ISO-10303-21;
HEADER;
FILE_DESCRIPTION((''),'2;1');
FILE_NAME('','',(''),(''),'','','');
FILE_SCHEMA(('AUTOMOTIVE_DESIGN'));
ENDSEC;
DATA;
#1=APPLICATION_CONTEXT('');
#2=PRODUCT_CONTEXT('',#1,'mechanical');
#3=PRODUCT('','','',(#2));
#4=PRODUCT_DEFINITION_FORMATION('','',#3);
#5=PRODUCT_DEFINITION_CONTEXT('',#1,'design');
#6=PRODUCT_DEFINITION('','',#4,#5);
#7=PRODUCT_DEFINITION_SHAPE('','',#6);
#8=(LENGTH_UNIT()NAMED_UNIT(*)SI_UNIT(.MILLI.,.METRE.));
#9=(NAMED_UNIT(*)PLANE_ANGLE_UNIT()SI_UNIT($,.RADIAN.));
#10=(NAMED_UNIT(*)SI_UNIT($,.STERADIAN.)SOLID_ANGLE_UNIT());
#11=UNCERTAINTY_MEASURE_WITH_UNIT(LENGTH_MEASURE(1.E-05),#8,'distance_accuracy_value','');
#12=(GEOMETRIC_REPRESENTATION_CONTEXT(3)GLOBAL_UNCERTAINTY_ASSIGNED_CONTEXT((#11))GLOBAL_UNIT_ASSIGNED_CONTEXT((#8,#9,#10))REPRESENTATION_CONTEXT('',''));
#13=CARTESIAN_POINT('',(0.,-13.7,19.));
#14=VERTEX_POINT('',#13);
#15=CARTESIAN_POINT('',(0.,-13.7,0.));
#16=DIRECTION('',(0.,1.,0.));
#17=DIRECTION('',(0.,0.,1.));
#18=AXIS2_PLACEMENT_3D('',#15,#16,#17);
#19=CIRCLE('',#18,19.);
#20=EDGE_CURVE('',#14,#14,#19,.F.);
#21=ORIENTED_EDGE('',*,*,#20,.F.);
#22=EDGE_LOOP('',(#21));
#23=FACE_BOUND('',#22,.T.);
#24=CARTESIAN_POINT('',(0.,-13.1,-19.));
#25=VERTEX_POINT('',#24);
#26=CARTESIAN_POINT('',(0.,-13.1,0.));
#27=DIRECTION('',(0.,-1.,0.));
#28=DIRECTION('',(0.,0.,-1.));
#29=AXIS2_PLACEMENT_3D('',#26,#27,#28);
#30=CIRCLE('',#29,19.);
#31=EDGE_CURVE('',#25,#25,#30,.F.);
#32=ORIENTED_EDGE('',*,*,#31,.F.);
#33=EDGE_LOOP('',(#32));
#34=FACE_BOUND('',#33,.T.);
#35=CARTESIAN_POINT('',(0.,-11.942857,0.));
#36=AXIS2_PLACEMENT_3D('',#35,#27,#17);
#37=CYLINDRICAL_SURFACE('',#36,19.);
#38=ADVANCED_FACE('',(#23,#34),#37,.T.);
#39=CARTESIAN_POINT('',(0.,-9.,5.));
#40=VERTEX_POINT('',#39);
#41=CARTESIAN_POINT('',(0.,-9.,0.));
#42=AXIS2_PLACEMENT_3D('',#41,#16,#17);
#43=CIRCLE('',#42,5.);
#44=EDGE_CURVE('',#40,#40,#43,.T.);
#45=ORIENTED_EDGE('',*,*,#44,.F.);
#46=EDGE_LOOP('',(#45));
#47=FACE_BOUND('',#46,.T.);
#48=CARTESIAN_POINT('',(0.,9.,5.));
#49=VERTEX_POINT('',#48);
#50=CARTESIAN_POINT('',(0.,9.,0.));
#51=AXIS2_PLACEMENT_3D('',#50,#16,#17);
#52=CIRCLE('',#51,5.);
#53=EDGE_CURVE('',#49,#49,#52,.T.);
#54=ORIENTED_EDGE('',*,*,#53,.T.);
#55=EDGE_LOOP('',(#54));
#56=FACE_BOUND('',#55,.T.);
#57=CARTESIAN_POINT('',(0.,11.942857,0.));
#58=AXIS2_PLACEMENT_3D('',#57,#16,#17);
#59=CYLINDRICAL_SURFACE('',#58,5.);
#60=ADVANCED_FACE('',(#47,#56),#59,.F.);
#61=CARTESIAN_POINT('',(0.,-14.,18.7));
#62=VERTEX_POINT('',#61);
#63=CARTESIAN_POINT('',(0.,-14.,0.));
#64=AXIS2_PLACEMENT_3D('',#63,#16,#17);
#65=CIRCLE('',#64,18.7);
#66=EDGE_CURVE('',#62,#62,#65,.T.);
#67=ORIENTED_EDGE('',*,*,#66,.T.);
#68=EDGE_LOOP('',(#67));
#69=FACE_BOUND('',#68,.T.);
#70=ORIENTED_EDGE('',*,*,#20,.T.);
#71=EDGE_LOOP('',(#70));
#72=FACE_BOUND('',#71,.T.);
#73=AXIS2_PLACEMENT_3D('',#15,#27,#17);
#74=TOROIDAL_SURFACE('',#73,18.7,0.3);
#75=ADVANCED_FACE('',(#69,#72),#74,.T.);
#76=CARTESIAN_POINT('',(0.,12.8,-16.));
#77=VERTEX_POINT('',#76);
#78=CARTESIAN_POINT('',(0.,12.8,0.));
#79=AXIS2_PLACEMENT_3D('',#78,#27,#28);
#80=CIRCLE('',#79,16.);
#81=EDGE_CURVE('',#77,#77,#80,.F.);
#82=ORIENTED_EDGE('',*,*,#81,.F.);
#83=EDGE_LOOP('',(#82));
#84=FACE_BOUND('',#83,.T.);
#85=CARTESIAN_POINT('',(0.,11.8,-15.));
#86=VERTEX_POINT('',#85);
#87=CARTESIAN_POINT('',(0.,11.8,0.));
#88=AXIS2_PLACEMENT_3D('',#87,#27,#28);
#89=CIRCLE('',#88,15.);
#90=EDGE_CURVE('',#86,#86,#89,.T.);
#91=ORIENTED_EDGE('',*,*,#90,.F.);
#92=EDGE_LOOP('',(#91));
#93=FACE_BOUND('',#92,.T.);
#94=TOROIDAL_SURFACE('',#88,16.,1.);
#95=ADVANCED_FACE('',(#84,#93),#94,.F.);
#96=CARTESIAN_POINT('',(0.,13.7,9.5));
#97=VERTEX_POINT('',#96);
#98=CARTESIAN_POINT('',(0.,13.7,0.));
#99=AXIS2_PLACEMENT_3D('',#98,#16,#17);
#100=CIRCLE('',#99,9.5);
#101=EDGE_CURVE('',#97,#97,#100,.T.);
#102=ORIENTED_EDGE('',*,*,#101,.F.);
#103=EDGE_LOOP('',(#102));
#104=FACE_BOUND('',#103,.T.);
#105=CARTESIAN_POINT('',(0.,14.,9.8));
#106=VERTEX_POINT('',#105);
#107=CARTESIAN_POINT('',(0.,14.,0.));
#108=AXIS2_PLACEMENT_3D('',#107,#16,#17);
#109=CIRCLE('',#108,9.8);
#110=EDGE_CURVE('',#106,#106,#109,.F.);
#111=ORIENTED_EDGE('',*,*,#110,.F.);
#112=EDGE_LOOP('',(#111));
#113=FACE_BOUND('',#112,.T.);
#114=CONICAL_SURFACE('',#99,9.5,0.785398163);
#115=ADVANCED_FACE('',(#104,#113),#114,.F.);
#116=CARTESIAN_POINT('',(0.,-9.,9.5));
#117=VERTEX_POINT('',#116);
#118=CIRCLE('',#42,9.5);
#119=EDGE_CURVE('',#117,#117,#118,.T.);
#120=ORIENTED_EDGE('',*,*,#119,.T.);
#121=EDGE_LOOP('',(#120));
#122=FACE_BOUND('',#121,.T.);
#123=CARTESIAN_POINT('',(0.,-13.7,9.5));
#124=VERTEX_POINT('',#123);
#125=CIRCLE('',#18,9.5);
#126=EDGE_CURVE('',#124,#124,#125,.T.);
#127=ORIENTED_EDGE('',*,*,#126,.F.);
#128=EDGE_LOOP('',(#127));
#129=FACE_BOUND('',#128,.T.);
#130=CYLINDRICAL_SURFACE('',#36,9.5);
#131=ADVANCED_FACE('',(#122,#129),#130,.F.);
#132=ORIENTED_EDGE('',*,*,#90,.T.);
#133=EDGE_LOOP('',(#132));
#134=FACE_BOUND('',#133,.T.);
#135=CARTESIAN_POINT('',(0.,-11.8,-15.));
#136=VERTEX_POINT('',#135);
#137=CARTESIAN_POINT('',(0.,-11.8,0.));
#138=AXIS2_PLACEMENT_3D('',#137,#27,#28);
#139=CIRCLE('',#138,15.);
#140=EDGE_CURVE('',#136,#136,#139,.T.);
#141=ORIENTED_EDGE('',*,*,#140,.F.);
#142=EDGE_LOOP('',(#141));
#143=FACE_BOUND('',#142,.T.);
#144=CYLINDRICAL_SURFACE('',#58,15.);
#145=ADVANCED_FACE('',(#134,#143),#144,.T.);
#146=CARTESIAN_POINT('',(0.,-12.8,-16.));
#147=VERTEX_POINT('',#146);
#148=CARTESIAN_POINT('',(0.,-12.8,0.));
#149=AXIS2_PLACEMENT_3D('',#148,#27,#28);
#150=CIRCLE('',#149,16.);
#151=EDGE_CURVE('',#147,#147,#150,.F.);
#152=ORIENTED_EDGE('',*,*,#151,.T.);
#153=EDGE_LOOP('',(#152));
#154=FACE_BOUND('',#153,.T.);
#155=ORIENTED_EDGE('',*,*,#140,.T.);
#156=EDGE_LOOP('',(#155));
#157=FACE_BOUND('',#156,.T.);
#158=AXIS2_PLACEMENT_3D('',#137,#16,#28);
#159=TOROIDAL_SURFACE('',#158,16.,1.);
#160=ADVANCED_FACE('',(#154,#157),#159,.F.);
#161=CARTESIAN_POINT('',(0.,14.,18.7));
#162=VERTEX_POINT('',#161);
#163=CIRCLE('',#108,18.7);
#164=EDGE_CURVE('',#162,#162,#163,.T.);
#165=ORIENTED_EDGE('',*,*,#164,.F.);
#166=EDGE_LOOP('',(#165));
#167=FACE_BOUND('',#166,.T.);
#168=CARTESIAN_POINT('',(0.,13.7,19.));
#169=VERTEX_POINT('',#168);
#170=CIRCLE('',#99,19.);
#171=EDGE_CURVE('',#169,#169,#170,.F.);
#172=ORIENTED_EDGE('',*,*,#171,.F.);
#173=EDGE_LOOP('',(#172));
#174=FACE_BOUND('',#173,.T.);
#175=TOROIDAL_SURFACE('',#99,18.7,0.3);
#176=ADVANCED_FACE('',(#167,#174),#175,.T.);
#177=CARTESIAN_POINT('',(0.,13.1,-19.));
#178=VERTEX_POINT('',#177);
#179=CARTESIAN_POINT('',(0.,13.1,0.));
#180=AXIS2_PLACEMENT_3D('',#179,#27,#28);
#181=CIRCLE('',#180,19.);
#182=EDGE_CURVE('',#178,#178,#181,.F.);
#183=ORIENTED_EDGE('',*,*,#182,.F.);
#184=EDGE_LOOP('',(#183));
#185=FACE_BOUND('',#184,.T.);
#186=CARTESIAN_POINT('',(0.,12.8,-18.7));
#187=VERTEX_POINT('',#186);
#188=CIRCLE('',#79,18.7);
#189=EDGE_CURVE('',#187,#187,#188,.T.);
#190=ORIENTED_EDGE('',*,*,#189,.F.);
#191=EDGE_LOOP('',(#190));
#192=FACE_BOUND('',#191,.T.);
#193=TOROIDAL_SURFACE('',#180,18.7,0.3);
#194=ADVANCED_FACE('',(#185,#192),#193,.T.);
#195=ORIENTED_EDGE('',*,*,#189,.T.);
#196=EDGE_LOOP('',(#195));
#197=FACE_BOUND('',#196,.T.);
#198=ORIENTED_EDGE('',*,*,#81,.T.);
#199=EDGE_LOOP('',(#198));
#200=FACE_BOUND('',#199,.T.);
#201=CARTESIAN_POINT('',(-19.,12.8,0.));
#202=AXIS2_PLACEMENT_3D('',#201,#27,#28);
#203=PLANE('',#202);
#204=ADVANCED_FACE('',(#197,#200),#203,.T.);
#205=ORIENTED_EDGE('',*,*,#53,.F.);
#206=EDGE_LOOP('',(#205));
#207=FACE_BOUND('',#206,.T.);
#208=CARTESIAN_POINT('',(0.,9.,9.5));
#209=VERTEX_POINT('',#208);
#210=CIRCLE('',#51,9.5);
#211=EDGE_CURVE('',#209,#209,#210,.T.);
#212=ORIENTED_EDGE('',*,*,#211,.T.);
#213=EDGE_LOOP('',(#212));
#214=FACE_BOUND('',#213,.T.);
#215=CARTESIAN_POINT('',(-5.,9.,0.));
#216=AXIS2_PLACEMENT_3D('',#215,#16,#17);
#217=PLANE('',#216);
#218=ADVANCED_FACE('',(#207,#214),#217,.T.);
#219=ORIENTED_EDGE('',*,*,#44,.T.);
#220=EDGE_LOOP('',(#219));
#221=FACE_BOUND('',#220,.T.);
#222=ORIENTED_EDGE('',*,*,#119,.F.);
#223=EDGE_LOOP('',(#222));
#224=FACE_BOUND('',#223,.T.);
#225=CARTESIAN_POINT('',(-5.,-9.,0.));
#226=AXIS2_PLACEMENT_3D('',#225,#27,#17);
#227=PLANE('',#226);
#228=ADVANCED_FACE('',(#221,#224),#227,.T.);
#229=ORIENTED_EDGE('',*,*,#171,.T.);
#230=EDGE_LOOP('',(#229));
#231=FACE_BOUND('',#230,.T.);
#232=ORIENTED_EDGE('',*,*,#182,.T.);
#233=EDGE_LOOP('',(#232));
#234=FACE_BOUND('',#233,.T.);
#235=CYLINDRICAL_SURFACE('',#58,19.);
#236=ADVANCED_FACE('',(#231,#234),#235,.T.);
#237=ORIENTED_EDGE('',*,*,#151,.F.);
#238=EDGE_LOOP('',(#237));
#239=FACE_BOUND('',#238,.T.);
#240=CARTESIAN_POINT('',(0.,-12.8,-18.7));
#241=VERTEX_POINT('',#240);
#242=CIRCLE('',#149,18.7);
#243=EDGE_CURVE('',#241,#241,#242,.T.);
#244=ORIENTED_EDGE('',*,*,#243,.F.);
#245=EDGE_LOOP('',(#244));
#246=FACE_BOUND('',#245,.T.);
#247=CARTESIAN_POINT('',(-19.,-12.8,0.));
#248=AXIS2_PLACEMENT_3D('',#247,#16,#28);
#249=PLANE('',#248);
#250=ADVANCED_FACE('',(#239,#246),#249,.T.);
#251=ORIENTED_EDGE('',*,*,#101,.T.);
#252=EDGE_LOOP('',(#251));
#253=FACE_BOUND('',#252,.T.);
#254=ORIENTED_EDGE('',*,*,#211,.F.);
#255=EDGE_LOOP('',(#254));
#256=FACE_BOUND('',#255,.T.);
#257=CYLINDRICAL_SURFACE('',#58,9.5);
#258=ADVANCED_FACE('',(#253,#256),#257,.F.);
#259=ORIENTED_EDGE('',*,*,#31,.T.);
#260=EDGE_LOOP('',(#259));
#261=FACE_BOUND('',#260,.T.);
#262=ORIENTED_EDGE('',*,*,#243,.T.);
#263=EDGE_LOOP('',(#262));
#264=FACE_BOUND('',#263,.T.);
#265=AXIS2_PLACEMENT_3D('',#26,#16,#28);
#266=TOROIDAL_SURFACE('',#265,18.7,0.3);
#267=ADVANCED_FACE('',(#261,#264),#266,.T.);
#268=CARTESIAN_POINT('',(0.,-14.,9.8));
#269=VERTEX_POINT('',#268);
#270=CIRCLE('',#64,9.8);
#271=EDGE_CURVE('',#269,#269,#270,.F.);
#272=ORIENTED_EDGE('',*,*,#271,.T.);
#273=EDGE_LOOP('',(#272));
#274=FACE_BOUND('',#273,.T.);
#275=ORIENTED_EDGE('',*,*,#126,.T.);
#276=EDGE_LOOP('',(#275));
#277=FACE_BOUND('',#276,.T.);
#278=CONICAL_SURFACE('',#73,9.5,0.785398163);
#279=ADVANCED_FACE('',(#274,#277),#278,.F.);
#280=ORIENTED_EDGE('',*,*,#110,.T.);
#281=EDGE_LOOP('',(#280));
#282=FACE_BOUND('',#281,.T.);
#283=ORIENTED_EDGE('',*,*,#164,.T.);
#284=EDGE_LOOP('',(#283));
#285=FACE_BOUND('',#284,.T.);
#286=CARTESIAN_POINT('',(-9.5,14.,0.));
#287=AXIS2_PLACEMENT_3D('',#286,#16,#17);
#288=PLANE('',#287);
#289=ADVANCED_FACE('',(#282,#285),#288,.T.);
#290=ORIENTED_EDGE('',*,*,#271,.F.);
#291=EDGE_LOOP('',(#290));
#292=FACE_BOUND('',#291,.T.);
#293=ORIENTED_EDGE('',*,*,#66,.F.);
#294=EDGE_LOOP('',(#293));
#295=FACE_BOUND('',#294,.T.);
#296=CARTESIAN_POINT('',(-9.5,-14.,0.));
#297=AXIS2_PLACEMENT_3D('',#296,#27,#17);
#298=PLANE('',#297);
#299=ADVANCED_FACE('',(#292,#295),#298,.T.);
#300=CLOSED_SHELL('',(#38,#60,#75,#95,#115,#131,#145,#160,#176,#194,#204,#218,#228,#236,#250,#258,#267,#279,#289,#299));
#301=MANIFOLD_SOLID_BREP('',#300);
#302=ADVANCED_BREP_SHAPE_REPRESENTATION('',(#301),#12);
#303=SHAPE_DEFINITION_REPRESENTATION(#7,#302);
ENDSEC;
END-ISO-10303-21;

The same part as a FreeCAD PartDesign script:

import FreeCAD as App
import Part
import Sketcher
from FreeCAD import Vector
Q = App.Units.Quantity


def edges_at(feature, points):
    """Names of the edges that pass closest to the given points."""
    edges = feature.Shape.Edges
    near = lambda p: min(range(len(edges)), key=lambda i: edges[i].distToShape(Part.Vertex(*p))[0])
    return sorted({f"Edge{near(p) + 1}" for p in points})


def add_polygon(sketch, points):
    """Adds a closed chain of lines whose ends are joined by coincident constraints."""
    first, n = sketch.GeometryCount, len(points)
    for a, b in zip(points, points[1:] + points[:1]):
        sketch.addGeometry(Part.LineSegment(App.Vector(*a, 0), App.Vector(*b, 0)), False)
    for i in range(n):
        sketch.addConstraint(Sketcher.Constraint("Coincident", first + i, 2, first + (i + 1) % n, 1))

doc = App.newDocument("Part")
params = doc.addObject("Spreadsheet::Sheet", "Params")
for row, (alias, value) in enumerate([
    ("sketch1_width", "4 mm"),
    ("sketch1_width2", "10 mm"),
    ("sketch1_height", "9 mm"),
    ("sketch1_height2", "5 mm"),
    ("sketch1_width3", "9.5 mm"),
    ("revolution_angle", "360 deg"),
    ("fillet_radius", "1 mm"),
    ("chamfer_size", "0.3 mm"),
    ("fillet2_radius", "0.3 mm"),
], start=1):
    params.set(f"A{row}", alias)
    params.set(f"B{row}", "=" + value)
    params.setAlias(f"B{row}", alias)

body = doc.addObject("PartDesign::Body", "Body")

sketch1 = body.newObject("Sketcher::SketchObject", "Sketch")
sketch1.AttachmentSupport = (doc.getObject("XY_Plane"), [""])
sketch1.MapMode = "FlatFace"
add_polygon(sketch1, [(-9.5, 14), (-19, 14), (-19, 12.8), (-15, 12.8), (-15, 0), (-5, 0), (-5, 9), (-9.5, 9)])
sketch1.addConstraint(Sketcher.Constraint("Horizontal", 0))
sketch1.addConstraint(Sketcher.Constraint("Vertical", 1))
sketch1.addConstraint(Sketcher.Constraint("Horizontal", 2))
sketch1.addConstraint(Sketcher.Constraint("Vertical", 3))
sketch1.addConstraint(Sketcher.Constraint("Horizontal", 4))
sketch1.addConstraint(Sketcher.Constraint("Vertical", 5))
sketch1.addConstraint(Sketcher.Constraint("Horizontal", 6))
sketch1.addConstraint(Sketcher.Constraint("Vertical", 7))
sketch1.addConstraint(Sketcher.Constraint("PointOnObject", 3, 2, -1))
sketch1.addConstraint(Sketcher.Constraint("DistanceX", 2, 1, 2, 2, Q("4 mm")))
sketch1.addConstraint(Sketcher.Constraint("DistanceX", 4, 1, 4, 2, Q("10 mm")))
sketch1.addConstraint(Sketcher.Constraint("DistanceY", 5, 1, 5, 2, Q("9 mm")))
sketch1.addConstraint(Sketcher.Constraint("DistanceY", 7, 1, 7, 2, Q("5 mm")))
sketch1.addConstraint(Sketcher.Constraint("DistanceX", 0, 2, 0, 1, Q("9.5 mm")))
sketch1.addConstraint(Sketcher.Constraint("DistanceY", 1, 2, 1, 1, Q("1.2 mm")))
sketch1.addConstraint(Sketcher.Constraint("DistanceX", 0, 2, -1, 1, Q("19 mm")))
sketch1.setExpression("Constraints[17]", "Params.sketch1_width")
sketch1.setExpression("Constraints[18]", "Params.sketch1_width2")
sketch1.setExpression("Constraints[19]", "Params.sketch1_height")
sketch1.setExpression("Constraints[20]", "Params.sketch1_height2")
sketch1.setExpression("Constraints[21]", "Params.sketch1_width3")
revolution = body.newObject("PartDesign::Revolution", "Revolution")
revolution.Profile = sketch1
revolution.ReferenceAxis = (sketch1, ["V_Axis"])
revolution.setExpression("Angle", "Params.revolution_angle")
doc.recompute()

fillet = body.newObject("PartDesign::Fillet", "Fillet")
fillet.Base = (revolution, edges_at(revolution, [(0, 12.8, -15)]))
fillet.setExpression("Radius", "Params.fillet_radius")
doc.recompute()

chamfer = body.newObject("PartDesign::Chamfer", "Chamfer")
chamfer.Base = (fillet, edges_at(fillet, [(0, 14, -9.5)]))
chamfer.setExpression("Size", "Params.chamfer_size")
doc.recompute()

fillet2 = body.newObject("PartDesign::Fillet", "Fillet001")
fillet2.Base = (chamfer, edges_at(chamfer, [(0, 12.8, -19), (0, 14, -19)]))
fillet2.setExpression("Radius", "Params.fillet2_radius")
body2 = doc.addObject("PartDesign::Body", "Body001")
doc.recompute()

body2.BaseFeature = body
doc.recompute()

mirroring = doc.addObject("Part::Mirroring", "Mirroring")
mirroring.Source = body
mirroring.Base = Vector(-15, 0, 0)
mirroring.Normal = Vector(0, -1, 0)
body3 = doc.addObject("PartDesign::Body", "Body002")
body3.BaseFeature = mirroring
boolean = body2.newObject("PartDesign::Boolean", "Boolean")
boolean.Type = "Fuse"
boolean.addObjects([body3])
doc.recompute()
mirroring.Visibility = False

doc.recompute()
